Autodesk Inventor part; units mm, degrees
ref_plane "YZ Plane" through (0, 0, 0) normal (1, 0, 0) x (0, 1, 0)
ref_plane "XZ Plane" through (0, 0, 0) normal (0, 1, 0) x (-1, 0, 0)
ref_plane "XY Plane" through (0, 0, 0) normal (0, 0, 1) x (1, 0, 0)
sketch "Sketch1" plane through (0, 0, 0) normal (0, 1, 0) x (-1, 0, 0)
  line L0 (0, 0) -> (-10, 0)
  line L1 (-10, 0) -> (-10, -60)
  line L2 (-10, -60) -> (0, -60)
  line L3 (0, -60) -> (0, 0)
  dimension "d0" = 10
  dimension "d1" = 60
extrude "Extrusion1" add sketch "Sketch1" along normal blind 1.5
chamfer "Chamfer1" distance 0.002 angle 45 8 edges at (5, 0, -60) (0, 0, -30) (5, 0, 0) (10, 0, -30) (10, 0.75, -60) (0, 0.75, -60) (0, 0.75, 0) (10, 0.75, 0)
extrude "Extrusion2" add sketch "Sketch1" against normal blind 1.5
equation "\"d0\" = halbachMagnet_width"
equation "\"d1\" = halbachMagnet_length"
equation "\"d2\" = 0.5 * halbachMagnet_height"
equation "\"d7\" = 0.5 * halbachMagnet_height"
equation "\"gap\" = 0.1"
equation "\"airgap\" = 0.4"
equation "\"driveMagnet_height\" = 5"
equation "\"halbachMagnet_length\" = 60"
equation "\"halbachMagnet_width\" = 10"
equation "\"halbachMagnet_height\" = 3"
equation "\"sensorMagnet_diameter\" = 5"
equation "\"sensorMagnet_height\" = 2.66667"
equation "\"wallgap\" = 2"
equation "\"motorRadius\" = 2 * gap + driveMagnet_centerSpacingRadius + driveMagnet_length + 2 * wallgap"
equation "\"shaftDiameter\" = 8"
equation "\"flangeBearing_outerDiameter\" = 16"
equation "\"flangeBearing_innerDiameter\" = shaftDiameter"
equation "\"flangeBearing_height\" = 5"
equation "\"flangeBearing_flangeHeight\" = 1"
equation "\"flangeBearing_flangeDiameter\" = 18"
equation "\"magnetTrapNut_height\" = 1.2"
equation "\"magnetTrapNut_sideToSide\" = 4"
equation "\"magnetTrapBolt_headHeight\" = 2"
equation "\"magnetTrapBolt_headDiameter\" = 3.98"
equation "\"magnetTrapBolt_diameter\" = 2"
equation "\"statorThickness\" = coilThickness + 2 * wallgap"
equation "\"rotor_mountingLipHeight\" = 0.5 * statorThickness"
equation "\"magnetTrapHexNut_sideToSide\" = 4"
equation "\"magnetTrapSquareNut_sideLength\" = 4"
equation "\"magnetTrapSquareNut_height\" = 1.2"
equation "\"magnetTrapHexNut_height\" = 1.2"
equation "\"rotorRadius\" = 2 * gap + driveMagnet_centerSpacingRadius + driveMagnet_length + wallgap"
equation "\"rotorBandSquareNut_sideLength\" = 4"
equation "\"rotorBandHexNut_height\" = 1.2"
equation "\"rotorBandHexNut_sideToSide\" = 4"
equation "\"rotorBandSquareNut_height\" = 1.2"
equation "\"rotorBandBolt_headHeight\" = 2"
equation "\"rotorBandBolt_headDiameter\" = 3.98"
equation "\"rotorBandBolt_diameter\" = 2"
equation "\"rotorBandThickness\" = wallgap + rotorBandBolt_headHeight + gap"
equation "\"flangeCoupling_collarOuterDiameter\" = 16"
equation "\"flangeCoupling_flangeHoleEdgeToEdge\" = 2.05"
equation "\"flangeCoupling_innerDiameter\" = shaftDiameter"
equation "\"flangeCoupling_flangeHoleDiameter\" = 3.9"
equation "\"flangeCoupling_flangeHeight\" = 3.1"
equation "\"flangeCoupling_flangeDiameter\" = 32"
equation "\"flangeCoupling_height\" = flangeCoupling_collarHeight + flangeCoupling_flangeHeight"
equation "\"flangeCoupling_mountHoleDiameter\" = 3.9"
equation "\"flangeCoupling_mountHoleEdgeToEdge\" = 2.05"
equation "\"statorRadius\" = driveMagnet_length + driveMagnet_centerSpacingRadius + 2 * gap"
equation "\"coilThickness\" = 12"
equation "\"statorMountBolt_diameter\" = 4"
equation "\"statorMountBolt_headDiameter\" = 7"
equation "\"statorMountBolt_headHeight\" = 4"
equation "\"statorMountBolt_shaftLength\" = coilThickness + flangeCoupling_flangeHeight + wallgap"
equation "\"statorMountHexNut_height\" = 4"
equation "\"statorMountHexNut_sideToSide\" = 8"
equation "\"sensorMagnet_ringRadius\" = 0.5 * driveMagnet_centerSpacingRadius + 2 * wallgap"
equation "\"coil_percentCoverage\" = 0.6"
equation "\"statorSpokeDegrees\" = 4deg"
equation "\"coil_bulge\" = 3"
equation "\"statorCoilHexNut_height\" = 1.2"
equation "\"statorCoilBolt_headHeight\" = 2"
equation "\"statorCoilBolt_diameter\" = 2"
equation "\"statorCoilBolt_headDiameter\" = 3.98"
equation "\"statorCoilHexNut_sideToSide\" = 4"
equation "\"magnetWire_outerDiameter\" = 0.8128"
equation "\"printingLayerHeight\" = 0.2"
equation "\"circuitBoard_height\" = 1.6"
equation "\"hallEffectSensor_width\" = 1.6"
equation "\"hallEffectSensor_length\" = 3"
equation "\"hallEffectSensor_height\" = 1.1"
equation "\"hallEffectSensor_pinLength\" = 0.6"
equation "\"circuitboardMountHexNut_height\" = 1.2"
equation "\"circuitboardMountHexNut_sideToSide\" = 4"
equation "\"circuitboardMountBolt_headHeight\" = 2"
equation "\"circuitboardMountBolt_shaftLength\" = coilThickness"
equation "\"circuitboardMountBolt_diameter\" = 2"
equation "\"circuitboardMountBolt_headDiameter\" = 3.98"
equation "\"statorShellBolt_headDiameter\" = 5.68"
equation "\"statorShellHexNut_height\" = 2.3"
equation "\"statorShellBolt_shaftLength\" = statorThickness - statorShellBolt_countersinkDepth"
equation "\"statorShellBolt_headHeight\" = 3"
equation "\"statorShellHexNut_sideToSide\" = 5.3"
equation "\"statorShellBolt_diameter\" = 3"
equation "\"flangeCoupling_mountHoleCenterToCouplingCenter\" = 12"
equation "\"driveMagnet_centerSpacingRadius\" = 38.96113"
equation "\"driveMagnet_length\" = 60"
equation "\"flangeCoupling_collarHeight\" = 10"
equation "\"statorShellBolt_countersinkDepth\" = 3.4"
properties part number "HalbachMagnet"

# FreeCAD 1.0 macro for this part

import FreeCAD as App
import Part
import Sketcher
from FreeCAD import Vector


def edges_at(feature, points):
    """Names of the edges that pass closest to the given points."""
    edges = feature.Shape.Edges
    near = lambda p: min(range(len(edges)), key=lambda i: edges[i].distToShape(Part.Vertex(*p))[0])
    return sorted({f"Edge{near(p) + 1}" for p in points})

doc = App.newDocument("Part")
params = doc.addObject("Spreadsheet::Sheet", "Params")
for row, (alias, value) in enumerate([
    ("sketch1_width", "10 mm"),
    ("sketch1_height", "60 mm"),
    ("pad1_length", "1.5 mm"),
    ("chamfer_size", "0.002 mm"),
    ("sketch2_width", "10 mm"),
    ("sketch2_height", "60 mm"),
    ("pad2_length", "1.5 mm"),
], start=1):
    params.set(f"A{row}", alias)
    params.set(f"B{row}", "=" + value)
    params.setAlias(f"B{row}", alias)

body = doc.addObject("PartDesign::Body", "Body")

sketch1 = body.newObject("Sketcher::SketchObject", "Sketch")
sketch1.AttachmentSupport = (doc.getObject("XZ_Plane"), [""])
sketch1.MapMode = "FlatFace"
sketch1.addGeometry([
    Part.LineSegment(Vector(0, -60, 0), Vector(0, 0, 0)),
    Part.LineSegment(Vector(0, 0, 0), Vector(10, 0, 0)),
    Part.LineSegment(Vector(10, 0, 0), Vector(10, -60, 0)),
    Part.LineSegment(Vector(10, -60, 0), Vector(0, -60, 0)),
], False)
sketch1.addConstraint([
    Sketcher.Constraint("Coincident", 0, 2, 1, 1),
    Sketcher.Constraint("Coincident", 1, 2, 2, 1),
    Sketcher.Constraint("Coincident", 2, 2, 3, 1),
    Sketcher.Constraint("Coincident", 3, 2, 0, 1),
    Sketcher.Constraint("Vertical", 0),
    Sketcher.Constraint("Horizontal", 1),
    Sketcher.Constraint("Vertical", 2),
    Sketcher.Constraint("Horizontal", 3),
    Sketcher.Constraint("Coincident", 0, 2, -1, 1),
    Sketcher.Constraint("DistanceX", 1, 1, 1, 2, 10.0),
    Sketcher.Constraint("DistanceY", 0, 1, 0, 2, 60.0),
])
sketch1.setExpression("Constraints[9]", "Params.sketch1_width")
sketch1.setExpression("Constraints[10]", "Params.sketch1_height")
pad1 = body.newObject("PartDesign::Pad", "Pad")
pad1.Profile = sketch1
pad1.setExpression("Length", "Params.pad1_length")
pad1.Reversed = True
doc.recompute()

chamfer = body.newObject("PartDesign::Chamfer", "Chamfer")
chamfer.Base = (pad1, edges_at(pad1, [
    (5, 0, -60),
    (0, 0, -30),
    (5, 0, 0),
    (10, 0, -30),
    (10, 0.75, -60),
    (0, 0.75, -60),
    (0, 0.75, 0),
    (10, 0.75, 0),
]))
chamfer.setExpression("Size", "Params.chamfer_size")

sketch2 = body.newObject("Sketcher::SketchObject", "Sketch001")
sketch2.AttachmentSupport = (doc.getObject("XZ_Plane"), [""])
sketch2.MapMode = "FlatFace"
sketch2.addGeometry([
    Part.LineSegment(Vector(0, -60, 0), Vector(0, 0, 0)),
    Part.LineSegment(Vector(0, 0, 0), Vector(10, 0, 0)),
    Part.LineSegment(Vector(10, 0, 0), Vector(10, -60, 0)),
    Part.LineSegment(Vector(10, -60, 0), Vector(0, -60, 0)),
], False)
sketch2.addConstraint([
    Sketcher.Constraint("Coincident", 0, 2, 1, 1),
    Sketcher.Constraint("Coincident", 1, 2, 2, 1),
    Sketcher.Constraint("Coincident", 2, 2, 3, 1),
    Sketcher.Constraint("Coincident", 3, 2, 0, 1),
    Sketcher.Constraint("Vertical", 0),
    Sketcher.Constraint("Horizontal", 1),
    Sketcher.Constraint("Vertical", 2),
    Sketcher.Constraint("Horizontal", 3),
    Sketcher.Constraint("Coincident", 0, 2, -1, 1),
    Sketcher.Constraint("DistanceX", 1, 1, 1, 2, 10.0),
    Sketcher.Constraint("DistanceY", 0, 1, 0, 2, 60.0),
])
sketch2.setExpression("Constraints[9]", "Params.sketch2_width")
sketch2.setExpression("Constraints[10]", "Params.sketch2_height")
pad2 = body.newObject("PartDesign::Pad", "Pad001")
pad2.Profile = sketch2
pad2.setExpression("Length", "Params.pad2_length")

doc.recompute()
